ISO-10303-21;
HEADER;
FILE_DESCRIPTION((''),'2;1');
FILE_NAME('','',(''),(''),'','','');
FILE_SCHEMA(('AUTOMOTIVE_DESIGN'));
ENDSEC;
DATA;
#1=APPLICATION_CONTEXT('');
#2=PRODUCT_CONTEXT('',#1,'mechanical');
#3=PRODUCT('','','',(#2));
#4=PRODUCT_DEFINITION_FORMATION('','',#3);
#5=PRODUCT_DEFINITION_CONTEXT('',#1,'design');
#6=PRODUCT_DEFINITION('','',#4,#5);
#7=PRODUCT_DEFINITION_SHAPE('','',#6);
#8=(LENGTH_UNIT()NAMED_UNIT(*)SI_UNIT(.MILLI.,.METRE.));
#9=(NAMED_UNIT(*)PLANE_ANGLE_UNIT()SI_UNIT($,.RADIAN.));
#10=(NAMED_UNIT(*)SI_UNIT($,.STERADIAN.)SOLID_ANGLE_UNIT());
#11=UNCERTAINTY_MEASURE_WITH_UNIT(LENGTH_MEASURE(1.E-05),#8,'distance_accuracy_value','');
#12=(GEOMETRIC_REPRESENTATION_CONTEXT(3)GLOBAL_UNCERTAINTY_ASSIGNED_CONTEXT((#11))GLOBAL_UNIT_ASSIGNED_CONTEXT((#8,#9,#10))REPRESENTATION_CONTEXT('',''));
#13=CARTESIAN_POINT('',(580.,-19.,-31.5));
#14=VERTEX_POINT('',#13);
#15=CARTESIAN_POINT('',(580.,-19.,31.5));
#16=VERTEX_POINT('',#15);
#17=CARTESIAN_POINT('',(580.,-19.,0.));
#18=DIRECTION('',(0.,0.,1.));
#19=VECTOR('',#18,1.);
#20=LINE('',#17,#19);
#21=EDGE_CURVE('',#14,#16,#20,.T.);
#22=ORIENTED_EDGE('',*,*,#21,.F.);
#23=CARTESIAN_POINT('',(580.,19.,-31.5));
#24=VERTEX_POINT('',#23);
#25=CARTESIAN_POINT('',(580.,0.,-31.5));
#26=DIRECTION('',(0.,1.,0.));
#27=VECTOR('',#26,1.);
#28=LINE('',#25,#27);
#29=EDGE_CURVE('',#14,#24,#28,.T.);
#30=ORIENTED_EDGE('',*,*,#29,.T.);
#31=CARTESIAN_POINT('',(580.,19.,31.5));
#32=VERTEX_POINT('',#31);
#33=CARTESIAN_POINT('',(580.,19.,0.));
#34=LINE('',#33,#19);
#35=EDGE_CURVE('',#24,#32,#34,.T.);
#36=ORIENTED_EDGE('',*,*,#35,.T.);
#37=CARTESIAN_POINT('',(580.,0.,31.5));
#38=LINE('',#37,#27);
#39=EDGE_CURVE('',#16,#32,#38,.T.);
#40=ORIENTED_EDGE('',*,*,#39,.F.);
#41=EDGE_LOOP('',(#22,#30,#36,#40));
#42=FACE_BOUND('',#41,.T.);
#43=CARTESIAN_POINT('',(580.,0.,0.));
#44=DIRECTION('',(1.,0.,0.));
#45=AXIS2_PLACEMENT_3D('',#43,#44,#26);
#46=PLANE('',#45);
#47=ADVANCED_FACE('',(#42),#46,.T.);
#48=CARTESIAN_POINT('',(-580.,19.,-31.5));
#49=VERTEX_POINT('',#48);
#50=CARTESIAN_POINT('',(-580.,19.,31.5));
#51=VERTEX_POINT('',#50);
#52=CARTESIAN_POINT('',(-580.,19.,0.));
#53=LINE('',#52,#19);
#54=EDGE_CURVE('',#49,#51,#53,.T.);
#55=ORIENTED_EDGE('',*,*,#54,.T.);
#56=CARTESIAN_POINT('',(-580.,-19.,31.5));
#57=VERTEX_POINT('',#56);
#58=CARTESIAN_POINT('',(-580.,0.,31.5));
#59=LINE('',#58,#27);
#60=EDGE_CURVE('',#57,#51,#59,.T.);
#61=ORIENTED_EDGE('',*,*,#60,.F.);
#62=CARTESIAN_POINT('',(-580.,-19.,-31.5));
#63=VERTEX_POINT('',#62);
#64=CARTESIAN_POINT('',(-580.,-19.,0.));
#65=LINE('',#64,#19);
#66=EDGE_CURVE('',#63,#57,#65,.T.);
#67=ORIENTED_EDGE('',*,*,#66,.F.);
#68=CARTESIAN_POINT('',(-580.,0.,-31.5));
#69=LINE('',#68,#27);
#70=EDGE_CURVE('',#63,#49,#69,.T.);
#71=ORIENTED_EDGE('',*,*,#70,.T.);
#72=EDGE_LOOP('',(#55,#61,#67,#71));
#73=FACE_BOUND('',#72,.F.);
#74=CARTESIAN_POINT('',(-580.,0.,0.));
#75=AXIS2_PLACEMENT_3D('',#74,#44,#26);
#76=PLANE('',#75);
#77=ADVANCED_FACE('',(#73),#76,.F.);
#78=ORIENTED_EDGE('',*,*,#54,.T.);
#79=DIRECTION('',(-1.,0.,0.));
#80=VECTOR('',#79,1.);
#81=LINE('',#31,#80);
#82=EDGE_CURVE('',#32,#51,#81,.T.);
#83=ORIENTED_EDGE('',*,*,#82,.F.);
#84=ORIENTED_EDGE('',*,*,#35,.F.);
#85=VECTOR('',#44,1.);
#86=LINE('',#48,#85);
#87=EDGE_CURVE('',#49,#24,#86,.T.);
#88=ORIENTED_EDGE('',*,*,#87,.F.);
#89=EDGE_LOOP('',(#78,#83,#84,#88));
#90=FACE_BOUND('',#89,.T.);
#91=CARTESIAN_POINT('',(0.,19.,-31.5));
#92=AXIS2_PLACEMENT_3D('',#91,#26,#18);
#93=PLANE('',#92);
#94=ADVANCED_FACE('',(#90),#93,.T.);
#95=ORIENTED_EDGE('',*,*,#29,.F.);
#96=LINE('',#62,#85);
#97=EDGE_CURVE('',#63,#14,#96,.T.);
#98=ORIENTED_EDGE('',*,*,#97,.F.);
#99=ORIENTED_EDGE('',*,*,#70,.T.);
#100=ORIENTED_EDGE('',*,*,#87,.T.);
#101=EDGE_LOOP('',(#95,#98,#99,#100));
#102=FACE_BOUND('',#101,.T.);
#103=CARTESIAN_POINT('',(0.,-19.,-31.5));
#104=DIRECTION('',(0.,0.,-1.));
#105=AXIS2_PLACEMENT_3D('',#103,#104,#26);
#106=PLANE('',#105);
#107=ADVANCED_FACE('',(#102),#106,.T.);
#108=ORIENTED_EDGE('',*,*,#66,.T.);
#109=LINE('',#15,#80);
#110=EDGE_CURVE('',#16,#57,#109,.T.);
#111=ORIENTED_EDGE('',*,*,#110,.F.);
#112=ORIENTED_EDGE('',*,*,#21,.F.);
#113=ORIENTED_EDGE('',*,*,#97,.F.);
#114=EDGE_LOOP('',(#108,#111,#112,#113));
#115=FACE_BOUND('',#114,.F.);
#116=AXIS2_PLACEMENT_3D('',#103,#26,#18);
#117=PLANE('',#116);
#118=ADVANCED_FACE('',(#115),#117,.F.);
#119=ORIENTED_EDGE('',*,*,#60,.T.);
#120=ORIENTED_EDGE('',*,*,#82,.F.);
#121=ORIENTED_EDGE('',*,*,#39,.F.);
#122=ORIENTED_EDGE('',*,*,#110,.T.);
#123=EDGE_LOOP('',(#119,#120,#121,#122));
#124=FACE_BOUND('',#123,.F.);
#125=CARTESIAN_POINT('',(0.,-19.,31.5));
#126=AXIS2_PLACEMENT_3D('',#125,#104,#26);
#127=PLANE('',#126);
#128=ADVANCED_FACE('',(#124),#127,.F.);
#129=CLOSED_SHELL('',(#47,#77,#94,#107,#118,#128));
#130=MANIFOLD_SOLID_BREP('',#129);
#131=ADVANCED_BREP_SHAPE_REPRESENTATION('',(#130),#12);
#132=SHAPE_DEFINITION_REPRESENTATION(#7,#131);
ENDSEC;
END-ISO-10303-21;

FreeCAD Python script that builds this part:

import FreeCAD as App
import Part
import Sketcher

V = App.Vector

doc = App.newDocument("Part")
body = doc.addObject("PartDesign::Body", "Body")

sketch1 = doc.addObject("Sketcher::SketchObject", "Sketch")
body.addObject(sketch1)
sketch1.AttachmentSupport = (doc.YZ_Plane, [""])
sketch1.MapMode = "FlatFace"
sketch1.addGeometry(Part.LineSegment(V(-19, 32, 0), V(-19, -32, 0)), False)
sketch1.addGeometry(Part.LineSegment(V(-19, -32, 0), V(19, -32, 0)), False)
sketch1.addGeometry(Part.LineSegment(V(19, -32, 0), V(19, 32, 0)), False)
sketch1.addGeometry(Part.LineSegment(V(19, 32, 0), V(-19, 32, 0)), False)
sketch1.addConstraint(Sketcher.Constraint("Coincident", 0, 2, 1, 1))
sketch1.addConstraint(Sketcher.Constraint("Coincident", 1, 2, 2, 1))
sketch1.addConstraint(Sketcher.Constraint("Coincident", 2, 2, 3, 1))
sketch1.addConstraint(Sketcher.Constraint("Coincident", 3, 2, 0, 1))
sketch1.addConstraint(Sketcher.Constraint("Vertical", 0))
sketch1.addConstraint(Sketcher.Constraint("Horizontal", 1))
sketch1.addConstraint(Sketcher.Constraint("Vertical", 2))
sketch1.addConstraint(Sketcher.Constraint("Horizontal", 3))
sketch1.addConstraint(Sketcher.Constraint("Symmetric", 0, 2, 2, 2, -1, 1))
sketch1.addConstraint(Sketcher.Constraint("DistanceX", 1, 1, 1, 2, 38.0))
sketch1.addConstraint(Sketcher.Constraint("DistanceY", 0, 2, 0, 1, 63.0))
pad1 = doc.addObject("PartDesign::Pad", "Pad")
body.addObject(pad1)
pad1.Profile = sketch1
pad1.Length = 1160
pad1.Midplane = True

doc.recompute()
